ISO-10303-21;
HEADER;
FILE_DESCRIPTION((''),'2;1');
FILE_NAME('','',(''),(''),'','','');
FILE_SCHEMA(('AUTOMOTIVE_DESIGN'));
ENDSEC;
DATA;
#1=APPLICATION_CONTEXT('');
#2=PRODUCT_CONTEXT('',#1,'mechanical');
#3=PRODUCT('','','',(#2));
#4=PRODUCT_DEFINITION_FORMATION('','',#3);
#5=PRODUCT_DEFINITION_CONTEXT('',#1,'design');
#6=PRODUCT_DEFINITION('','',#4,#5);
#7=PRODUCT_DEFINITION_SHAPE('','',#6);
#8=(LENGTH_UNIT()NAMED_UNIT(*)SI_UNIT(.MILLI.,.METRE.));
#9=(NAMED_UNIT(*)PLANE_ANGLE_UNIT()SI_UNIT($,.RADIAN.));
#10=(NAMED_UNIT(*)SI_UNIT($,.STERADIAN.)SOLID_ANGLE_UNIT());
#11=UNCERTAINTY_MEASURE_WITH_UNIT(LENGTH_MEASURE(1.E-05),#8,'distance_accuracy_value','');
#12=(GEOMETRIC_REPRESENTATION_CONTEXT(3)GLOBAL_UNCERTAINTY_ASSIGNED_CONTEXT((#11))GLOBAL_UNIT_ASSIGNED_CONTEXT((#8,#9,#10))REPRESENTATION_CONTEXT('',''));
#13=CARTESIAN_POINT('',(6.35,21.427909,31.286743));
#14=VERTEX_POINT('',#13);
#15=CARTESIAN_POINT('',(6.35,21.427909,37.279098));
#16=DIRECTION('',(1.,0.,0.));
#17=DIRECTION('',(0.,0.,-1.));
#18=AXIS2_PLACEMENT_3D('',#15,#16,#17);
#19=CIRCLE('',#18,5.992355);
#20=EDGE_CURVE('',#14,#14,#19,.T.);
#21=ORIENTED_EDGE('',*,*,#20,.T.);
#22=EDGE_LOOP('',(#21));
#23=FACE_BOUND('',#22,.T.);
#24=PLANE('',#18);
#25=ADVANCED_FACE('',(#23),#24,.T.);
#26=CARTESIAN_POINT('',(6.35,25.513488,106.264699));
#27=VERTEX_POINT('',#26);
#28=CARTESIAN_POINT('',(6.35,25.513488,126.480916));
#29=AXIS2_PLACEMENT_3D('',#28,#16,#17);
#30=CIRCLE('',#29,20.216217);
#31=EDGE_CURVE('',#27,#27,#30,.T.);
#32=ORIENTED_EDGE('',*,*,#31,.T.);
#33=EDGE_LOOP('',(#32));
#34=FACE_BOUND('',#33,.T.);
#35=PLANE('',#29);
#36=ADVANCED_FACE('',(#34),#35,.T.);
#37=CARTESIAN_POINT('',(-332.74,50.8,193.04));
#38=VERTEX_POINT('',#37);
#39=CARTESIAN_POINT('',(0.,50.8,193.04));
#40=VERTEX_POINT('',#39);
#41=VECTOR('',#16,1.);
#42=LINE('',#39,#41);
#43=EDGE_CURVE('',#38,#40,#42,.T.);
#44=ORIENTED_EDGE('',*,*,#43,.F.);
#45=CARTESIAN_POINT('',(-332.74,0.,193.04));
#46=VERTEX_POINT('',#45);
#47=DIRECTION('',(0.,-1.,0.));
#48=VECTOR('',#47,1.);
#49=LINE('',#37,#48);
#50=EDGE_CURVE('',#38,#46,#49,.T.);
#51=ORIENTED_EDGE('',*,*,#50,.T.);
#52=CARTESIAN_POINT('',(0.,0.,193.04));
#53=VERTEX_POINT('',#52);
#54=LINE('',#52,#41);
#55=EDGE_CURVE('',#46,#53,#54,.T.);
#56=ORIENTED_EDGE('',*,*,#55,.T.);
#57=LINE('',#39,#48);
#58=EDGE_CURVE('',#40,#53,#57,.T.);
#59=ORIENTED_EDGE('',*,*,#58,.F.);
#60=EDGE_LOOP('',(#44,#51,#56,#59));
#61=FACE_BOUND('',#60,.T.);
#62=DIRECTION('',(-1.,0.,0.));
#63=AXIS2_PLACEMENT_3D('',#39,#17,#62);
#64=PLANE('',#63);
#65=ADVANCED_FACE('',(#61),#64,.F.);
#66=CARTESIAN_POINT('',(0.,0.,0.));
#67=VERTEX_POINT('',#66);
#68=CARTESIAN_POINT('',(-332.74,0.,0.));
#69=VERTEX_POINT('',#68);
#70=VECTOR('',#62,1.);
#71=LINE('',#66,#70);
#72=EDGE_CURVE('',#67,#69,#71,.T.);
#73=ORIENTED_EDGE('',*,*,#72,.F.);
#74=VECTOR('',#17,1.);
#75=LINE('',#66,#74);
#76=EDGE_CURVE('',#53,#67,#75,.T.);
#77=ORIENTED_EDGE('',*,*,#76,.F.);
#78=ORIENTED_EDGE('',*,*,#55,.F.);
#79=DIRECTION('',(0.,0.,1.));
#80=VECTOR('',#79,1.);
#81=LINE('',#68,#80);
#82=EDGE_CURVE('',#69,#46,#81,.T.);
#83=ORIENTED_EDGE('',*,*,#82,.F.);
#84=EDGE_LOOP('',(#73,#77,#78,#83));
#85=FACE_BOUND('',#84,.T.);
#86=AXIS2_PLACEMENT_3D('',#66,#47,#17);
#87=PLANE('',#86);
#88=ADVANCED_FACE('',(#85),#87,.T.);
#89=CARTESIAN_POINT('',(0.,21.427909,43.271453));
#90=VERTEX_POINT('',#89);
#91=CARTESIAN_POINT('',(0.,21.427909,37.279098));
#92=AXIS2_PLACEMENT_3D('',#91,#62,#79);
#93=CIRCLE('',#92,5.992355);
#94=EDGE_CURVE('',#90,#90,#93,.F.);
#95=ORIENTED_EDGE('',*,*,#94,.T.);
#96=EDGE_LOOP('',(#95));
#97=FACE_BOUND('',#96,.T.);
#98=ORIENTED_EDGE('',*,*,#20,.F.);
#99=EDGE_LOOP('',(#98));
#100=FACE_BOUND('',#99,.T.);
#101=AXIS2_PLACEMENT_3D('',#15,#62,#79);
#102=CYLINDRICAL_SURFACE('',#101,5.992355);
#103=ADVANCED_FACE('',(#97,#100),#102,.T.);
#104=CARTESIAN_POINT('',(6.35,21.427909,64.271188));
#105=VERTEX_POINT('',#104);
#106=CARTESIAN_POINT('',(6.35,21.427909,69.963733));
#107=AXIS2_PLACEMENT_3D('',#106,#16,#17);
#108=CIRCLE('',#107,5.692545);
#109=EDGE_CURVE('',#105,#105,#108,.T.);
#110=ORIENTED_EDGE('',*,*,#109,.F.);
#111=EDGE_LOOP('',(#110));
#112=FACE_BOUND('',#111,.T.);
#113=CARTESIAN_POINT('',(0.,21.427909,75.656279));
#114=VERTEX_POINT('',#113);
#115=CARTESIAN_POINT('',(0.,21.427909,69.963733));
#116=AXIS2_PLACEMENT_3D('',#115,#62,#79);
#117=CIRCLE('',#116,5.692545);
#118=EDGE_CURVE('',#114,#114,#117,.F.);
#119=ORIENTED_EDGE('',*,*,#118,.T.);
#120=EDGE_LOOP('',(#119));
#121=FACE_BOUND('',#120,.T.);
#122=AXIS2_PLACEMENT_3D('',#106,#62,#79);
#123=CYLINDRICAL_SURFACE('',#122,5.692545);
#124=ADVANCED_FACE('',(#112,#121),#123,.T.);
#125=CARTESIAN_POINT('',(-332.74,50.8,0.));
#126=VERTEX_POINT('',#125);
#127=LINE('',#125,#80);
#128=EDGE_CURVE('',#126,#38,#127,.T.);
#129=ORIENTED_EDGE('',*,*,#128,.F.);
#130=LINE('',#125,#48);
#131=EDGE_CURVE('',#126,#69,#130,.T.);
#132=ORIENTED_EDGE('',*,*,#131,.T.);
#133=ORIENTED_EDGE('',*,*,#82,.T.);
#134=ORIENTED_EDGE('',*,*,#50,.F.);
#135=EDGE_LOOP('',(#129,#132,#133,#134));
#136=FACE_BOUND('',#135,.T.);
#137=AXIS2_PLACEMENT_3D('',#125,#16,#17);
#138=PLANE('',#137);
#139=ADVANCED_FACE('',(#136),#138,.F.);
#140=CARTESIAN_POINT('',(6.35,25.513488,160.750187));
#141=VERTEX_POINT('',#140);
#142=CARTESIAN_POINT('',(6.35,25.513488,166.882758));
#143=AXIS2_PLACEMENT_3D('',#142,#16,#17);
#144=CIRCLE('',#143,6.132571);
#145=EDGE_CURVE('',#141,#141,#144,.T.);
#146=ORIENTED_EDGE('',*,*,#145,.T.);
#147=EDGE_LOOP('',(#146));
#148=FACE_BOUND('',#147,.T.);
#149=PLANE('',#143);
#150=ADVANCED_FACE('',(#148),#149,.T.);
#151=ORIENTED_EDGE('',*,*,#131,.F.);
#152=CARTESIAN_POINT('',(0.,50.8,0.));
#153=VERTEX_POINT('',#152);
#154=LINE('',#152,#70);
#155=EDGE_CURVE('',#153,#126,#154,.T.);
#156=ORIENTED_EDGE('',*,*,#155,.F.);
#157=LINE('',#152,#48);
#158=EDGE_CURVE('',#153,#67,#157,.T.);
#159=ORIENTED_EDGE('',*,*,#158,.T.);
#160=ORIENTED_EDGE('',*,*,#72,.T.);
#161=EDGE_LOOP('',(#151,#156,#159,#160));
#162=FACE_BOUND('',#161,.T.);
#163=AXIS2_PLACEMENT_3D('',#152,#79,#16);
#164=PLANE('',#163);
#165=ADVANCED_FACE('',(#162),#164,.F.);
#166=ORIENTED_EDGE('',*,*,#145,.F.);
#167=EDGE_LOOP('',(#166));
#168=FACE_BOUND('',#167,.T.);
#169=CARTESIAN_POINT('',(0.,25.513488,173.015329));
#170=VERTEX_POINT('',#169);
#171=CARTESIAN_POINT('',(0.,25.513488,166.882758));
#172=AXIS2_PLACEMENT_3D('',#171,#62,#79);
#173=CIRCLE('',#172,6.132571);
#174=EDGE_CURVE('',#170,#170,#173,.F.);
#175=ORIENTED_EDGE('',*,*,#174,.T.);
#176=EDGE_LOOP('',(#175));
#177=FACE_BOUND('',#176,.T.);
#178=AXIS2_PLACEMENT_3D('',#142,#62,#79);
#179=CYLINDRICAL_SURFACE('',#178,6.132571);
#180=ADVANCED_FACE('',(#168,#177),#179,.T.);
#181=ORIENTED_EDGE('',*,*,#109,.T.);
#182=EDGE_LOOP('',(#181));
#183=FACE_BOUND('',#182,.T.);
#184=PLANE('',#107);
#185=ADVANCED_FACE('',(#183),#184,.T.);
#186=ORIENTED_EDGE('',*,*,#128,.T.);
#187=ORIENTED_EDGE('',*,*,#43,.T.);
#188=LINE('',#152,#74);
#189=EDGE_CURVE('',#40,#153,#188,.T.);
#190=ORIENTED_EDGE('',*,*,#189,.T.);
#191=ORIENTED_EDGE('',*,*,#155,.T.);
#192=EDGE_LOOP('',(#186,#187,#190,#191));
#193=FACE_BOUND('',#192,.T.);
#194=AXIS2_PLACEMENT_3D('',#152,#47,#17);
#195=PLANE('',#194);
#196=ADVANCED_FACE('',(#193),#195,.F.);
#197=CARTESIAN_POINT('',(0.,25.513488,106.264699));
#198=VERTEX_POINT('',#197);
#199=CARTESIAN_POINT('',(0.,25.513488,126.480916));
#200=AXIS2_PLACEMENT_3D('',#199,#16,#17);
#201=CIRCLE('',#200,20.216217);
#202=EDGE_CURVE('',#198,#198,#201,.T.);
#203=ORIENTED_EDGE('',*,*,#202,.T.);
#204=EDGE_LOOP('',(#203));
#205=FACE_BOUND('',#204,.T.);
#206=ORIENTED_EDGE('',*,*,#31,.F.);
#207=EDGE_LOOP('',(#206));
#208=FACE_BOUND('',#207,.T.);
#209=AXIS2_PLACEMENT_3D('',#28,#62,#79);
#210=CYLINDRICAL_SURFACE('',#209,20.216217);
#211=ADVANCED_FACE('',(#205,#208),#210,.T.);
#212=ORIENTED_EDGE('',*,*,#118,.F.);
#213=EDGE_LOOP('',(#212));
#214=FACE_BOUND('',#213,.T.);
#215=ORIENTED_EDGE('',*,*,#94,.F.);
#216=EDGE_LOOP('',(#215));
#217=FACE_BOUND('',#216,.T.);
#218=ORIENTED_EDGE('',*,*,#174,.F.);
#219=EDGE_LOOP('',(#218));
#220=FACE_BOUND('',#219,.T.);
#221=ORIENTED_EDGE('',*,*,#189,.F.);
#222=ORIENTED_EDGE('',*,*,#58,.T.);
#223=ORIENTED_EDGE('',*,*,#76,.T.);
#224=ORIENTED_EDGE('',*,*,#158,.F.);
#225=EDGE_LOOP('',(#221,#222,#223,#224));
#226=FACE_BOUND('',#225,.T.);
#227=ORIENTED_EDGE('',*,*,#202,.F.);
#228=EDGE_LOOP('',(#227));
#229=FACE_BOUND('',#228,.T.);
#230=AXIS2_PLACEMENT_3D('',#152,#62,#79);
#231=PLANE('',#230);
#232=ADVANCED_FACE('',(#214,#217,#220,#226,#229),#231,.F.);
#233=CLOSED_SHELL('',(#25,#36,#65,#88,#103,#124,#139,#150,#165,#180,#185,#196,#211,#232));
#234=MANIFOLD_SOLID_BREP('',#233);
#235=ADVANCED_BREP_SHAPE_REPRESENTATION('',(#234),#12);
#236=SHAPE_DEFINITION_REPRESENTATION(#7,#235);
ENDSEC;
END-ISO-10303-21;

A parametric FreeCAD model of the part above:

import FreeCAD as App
import Part
import Sketcher

V = App.Vector
Q = App.Units.Quantity


def add_polygon(sketch, points):
    """Adds a closed chain of lines whose ends are joined by coincident constraints."""
    first, n = sketch.GeometryCount, len(points)
    for a, b in zip(points, points[1:] + points[:1]):
        sketch.addGeometry(Part.LineSegment(App.Vector(*a, 0), App.Vector(*b, 0)), False)
    for i in range(n):
        sketch.addConstraint(Sketcher.Constraint("Coincident", first + i, 2, first + (i + 1) % n, 1))

doc = App.newDocument("Part")
body = doc.addObject("PartDesign::Body", "Body")

# Sketch on XZ plane
sketch1 = body.newObject("Sketcher::SketchObject", "Sketch")
sketch1.AttachmentSupport = (doc.getObject("XZ_Plane"), [""])
sketch1.MapMode = "FlatFace"
add_polygon(sketch1, [(-332.74, 0), (-332.74, 193.04), (0, 193.04), (0, 0)])  # lines 0-3
sketch1.addConstraint([
    Sketcher.Constraint("Vertical", 0),
    Sketcher.Constraint("Horizontal", 1),
    Sketcher.Constraint("Vertical", 2),
    Sketcher.Constraint("Horizontal", 3),
    Sketcher.Constraint("Coincident", 2, 2, -1, 1),
    Sketcher.Constraint("DistanceX", 1, 1, 1, 2, Q("13.1 in")),
    Sketcher.Constraint("DistanceY", 0, 1, 0, 2, Q("7.6 in")),
])
pad1 = body.newObject("PartDesign::Pad", "Pad")
pad1.Profile = sketch1
pad1.Length = Q("2 in")
pad1.Reversed = True

# Sketch on YZ plane
sketch2 = body.newObject("Sketcher::SketchObject", "Sketch001")
sketch2.AttachmentSupport = (doc.getObject("YZ_Plane"), [""])
sketch2.MapMode = "FlatFace"
sketch2.addGeometry([
    Part.Circle(V(25.513488, 126.480916, 0), V(0, 0, 1), 20.216217),
    Part.Circle(V(25.513488, 166.882758, 0), V(0, 0, 1), 6.132571),
    Part.Circle(V(21.427909, 69.963733, 0), V(0, 0, 1), 5.692545),
    Part.Circle(V(21.427909, 37.279098, 0), V(0, 0, 1), 5.992355),
], False)
sketch2.addConstraint([
    Sketcher.Constraint("Vertical", 0, 3, 1, 3),
    Sketcher.Constraint("Vertical", 2, 3, 3, 3),
    Sketcher.Constraint("Diameter", 2, 11.38509),
    Sketcher.Constraint("Diameter", 3, 11.98471),
    Sketcher.Constraint("Diameter", 0, 40.432433),
    Sketcher.Constraint("Diameter", 1, 12.265142),
    Sketcher.Constraint("DistanceX", -1, 1, 0, 3, 25.513488),
    Sketcher.Constraint("DistanceX", -1, 1, 2, 3, 21.427909),
    Sketcher.Constraint("DistanceY", 0, 3, 1, 3, 40.401841),
    Sketcher.Constraint("DistanceY", 3, 3, 0, 3, 89.201818),
    Sketcher.Constraint("DistanceY", -1, 1, 0, 3, 126.480916),
    Sketcher.Constraint("DistanceY", -1, 1, 2, 3, 69.963733),
])
pad2 = body.newObject("PartDesign::Pad", "Pad001")
pad2.Profile = sketch2
pad2.Length = Q("0.25 in")

doc.recompute()
